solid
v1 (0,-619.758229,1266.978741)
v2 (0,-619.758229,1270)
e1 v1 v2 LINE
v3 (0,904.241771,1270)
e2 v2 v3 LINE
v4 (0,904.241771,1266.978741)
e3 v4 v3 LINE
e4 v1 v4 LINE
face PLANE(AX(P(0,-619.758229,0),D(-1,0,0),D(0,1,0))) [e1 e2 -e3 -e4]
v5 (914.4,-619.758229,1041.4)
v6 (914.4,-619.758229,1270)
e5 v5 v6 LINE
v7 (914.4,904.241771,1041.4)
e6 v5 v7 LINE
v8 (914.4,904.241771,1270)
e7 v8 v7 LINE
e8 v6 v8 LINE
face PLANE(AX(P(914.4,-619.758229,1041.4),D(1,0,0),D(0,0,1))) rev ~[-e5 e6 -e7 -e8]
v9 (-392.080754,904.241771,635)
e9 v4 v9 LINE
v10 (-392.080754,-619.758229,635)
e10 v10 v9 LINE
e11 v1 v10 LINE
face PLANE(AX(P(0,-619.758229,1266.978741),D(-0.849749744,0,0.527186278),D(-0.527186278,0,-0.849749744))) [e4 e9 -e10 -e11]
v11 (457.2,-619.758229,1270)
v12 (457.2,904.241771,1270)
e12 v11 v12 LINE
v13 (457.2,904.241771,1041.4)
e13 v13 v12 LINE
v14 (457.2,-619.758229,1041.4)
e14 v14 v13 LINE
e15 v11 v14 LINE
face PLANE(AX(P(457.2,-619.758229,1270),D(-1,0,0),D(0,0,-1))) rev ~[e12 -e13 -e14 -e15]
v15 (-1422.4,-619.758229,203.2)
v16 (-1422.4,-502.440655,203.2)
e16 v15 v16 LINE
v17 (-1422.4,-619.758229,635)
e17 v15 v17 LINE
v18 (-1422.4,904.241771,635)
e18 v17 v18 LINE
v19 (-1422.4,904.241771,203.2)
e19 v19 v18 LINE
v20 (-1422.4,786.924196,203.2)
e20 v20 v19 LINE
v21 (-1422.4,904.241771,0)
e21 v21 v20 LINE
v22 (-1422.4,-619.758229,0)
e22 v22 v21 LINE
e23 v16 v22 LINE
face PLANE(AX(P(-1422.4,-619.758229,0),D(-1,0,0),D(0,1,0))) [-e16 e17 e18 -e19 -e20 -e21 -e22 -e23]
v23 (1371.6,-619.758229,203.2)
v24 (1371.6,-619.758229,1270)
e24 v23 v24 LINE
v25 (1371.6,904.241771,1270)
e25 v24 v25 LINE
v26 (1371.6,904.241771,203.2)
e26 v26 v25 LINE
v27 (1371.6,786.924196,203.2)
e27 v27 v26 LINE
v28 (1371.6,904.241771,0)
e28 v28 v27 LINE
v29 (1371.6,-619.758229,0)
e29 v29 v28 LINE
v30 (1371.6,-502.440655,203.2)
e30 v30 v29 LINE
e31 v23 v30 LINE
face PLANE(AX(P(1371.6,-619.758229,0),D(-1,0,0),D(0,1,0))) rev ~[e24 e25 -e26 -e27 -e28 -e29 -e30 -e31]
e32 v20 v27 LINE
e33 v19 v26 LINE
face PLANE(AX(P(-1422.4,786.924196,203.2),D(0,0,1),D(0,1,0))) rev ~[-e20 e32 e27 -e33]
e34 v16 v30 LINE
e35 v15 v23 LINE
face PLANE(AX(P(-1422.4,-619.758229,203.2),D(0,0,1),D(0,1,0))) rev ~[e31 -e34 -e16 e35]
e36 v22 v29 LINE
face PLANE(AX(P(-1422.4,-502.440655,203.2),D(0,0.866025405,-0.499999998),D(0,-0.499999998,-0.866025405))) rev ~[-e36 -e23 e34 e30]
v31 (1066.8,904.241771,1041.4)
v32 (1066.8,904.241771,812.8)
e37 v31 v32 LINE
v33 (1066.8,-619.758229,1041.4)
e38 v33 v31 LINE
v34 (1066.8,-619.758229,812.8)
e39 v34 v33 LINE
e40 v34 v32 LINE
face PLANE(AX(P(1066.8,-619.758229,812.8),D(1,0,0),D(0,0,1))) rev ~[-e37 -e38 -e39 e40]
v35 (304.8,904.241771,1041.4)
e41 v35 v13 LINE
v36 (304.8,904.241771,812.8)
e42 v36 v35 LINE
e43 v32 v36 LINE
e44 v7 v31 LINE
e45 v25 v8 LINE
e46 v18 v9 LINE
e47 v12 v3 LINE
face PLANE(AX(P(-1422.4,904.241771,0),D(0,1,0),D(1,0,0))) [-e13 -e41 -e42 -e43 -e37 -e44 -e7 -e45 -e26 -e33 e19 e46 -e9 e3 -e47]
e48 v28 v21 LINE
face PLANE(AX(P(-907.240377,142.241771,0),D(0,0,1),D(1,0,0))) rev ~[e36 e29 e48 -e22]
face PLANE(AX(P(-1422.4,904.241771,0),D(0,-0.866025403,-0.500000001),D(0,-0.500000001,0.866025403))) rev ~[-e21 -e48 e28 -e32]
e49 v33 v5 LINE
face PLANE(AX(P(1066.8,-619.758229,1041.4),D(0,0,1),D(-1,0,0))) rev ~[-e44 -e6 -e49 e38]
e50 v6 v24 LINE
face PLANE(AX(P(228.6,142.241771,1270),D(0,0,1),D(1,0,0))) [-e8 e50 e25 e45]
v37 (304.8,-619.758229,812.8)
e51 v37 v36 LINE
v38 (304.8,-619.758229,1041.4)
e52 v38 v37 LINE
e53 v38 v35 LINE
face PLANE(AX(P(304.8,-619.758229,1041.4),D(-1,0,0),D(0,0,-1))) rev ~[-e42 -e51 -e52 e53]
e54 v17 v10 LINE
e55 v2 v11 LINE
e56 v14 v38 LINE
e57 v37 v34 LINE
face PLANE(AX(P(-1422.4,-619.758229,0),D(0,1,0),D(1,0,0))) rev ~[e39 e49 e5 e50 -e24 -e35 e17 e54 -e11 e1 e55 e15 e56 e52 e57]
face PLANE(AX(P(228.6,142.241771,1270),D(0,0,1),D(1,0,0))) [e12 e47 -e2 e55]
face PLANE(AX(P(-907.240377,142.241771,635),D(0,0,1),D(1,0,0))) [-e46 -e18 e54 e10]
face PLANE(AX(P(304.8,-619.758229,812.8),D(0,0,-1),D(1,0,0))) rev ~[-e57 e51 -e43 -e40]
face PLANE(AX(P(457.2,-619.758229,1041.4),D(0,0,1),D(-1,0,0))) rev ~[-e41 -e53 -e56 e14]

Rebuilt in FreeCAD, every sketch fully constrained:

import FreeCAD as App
import Part
import Sketcher
from FreeCAD import Vector
Q = App.Units.Quantity

doc = App.newDocument("Part")
body = doc.addObject("PartDesign::Body", "Body")

# Sketch on XY plane
sketch1 = body.newObject("Sketcher::SketchObject", "Sketch")
sketch1.AttachmentSupport = (doc.getObject("XY_Plane"), [""])
sketch1.MapMode = "FlatFace"
sketch1.addGeometry(Part.LineSegment(Vector(-1422, 904, 0), Vector(-1422, -620, 0)), False)
sketch1.addGeometry(Part.LineSegment(Vector(-1422, -620, 0), Vector(-392, -620, 0)), False)
sketch1.addGeometry(Part.LineSegment(Vector(-392, -620, 0), Vector(-392, 904, 0)), False)
sketch1.addGeometry(Part.LineSegment(Vector(-392, 904, 0), Vector(-1422, 904, 0)), False)
sketch1.addConstraint(Sketcher.Constraint("Coincident", 0, 2, 1, 1))
sketch1.addConstraint(Sketcher.Constraint("Coincident", 1, 2, 2, 1))
sketch1.addConstraint(Sketcher.Constraint("Coincident", 2, 2, 3, 1))
sketch1.addConstraint(Sketcher.Constraint("Coincident", 3, 2, 0, 1))
sketch1.addConstraint(Sketcher.Constraint("Vertical", 0))
sketch1.addConstraint(Sketcher.Constraint("Horizontal", 1))
sketch1.addConstraint(Sketcher.Constraint("Vertical", 2))
sketch1.addConstraint(Sketcher.Constraint("Horizontal", 3))
sketch1.addConstraint(Sketcher.Constraint("DistanceY", 0, 2, 0, 1, Q("60 in")))
sketch1.addConstraint(Sketcher.Constraint("DistanceX", 0, 2, -1, 1, Q("56 in")))
sketch1.addConstraint(Sketcher.Constraint("DistanceX", 1, 1, 1, 2, Q("1030.319246 mm")))
sketch1.addConstraint(Sketcher.Constraint("DistanceY", 0, 2, -1, 1, Q("619.758229 mm")))
pad1 = body.newObject("PartDesign::Pad", "Pad")
pad1.Profile = sketch1
pad1.Length = Q("25 in")
body2 = doc.addObject("PartDesign::Body", "Body001")

# Sketch on XY plane
sketch2 = body2.newObject("Sketcher::SketchObject", "Sketch001")
sketch2.AttachmentSupport = (doc.getObject("XY_Plane001"), [""])
sketch2.MapMode = "FlatFace"
sketch2.addGeometry(Part.LineSegment(Vector(0, 904, 0), Vector(0, -620, 0)), False)
sketch2.addGeometry(Part.LineSegment(Vector(0, -620, 0), Vector(1372, -620, 0)), False)
sketch2.addGeometry(Part.LineSegment(Vector(1372, -620, 0), Vector(1372, 904, 0)), False)
sketch2.addGeometry(Part.LineSegment(Vector(1372, 904, 0), Vector(0, 904, 0)), False)
sketch2.addConstraint(Sketcher.Constraint("Coincident", 0, 2, 1, 1))
sketch2.addConstraint(Sketcher.Constraint("Coincident", 1, 2, 2, 1))
sketch2.addConstraint(Sketcher.Constraint("Coincident", 2, 2, 3, 1))
sketch2.addConstraint(Sketcher.Constraint("Coincident", 3, 2, 0, 1))
sketch2.addConstraint(Sketcher.Constraint("Vertical", 0))
sketch2.addConstraint(Sketcher.Constraint("Horizontal", 1))
sketch2.addConstraint(Sketcher.Constraint("Vertical", 2))
sketch2.addConstraint(Sketcher.Constraint("Horizontal", 3))
sketch2.addConstraint(Sketcher.Constraint("PointOnObject", 0, 2, -2))
sketch2.addConstraint(Sketcher.Constraint("DistanceX", 1, 1, 1, 2, Q("54 in")))
sketch2.addConstraint(Sketcher.Constraint("DistanceY", 0, 2, 0, 1, Q("60 in")))
sketch2.addConstraint(Sketcher.Constraint("DistanceY", 0, 2, -1, 1, Q("619.758229 mm")))
pad2 = body2.newObject("PartDesign::Pad", "Pad001")
pad2.Profile = sketch2
pad2.Length = Q("50 in")
body3 = doc.addObject("PartDesign::Body", "Body002")

# Sketch on XY plane
sketch3 = body3.newObject("Sketcher::SketchObject", "Sketch002")
sketch3.AttachmentSupport = (doc.getObject("XY_Plane002"), [""])
sketch3.MapMode = "FlatFace"
sketch3.addGeometry(Part.LineSegment(Vector(-392, 904, 0), Vector(-392, -620, 0)), False)
sketch3.addGeometry(Part.LineSegment(Vector(-392, -620, 0), Vector(0, -620, 0)), False)
sketch3.addGeometry(Part.LineSegment(Vector(0, -620, 0), Vector(0, 904, 0)), False)
sketch3.addGeometry(Part.LineSegment(Vector(0, 904, 0), Vector(-392, 904, 0)), False)
sketch3.addConstraint(Sketcher.Constraint("Coincident", 0, 2, 1, 1))
sketch3.addConstraint(Sketcher.Constraint("Coincident", 1, 2, 2, 1))
sketch3.addConstraint(Sketcher.Constraint("Coincident", 2, 2, 3, 1))
sketch3.addConstraint(Sketcher.Constraint("Coincident", 3, 2, 0, 1))
sketch3.addConstraint(Sketcher.Constraint("Vertical", 0))
sketch3.addConstraint(Sketcher.Constraint("Horizontal", 1))
sketch3.addConstraint(Sketcher.Constraint("Vertical", 2))
sketch3.addConstraint(Sketcher.Constraint("Horizontal", 3))
sketch3.addConstraint(Sketcher.Constraint("PointOnObject", 1, 2, -2))
sketch3.addConstraint(Sketcher.Constraint("DistanceY", 0, 2, 0, 1, Q("60 in")))
sketch3.addConstraint(Sketcher.Constraint("DistanceX", 1, 1, 1, 2, Q("392.080754 mm")))
sketch3.addConstraint(Sketcher.Constraint("DistanceY", 0, 2, -1, 1, Q("619.758229 mm")))
pad3 = body3.newObject("PartDesign::Pad", "Pad002")
pad3.Profile = sketch3
pad3.Length = Q("25 in")
body4 = doc.addObject("PartDesign::Body", "Body003")

# Sketch on XZ plane
sketch4 = body4.newObject("Sketcher::SketchObject", "Sketch003")
sketch4.AttachmentSupport = (doc.getObject("XZ_Plane003"), [""])
sketch4.MapMode = "FlatFace"
sketch4.AttachmentOffset = App.Placement(Vector(0, 0, 619.758229), App.Rotation())
sketch4.addGeometry(Part.LineSegment(Vector(0, 1267, 0), Vector(-392, 635, 0)), False)
sketch4.addGeometry(Part.LineSegment(Vector(-392, 635, 0), Vector(0, 635, 0)), False)
sketch4.addGeometry(Part.LineSegment(Vector(0, 635, 0), Vector(0, 1267, 0)), False)
sketch4.addConstraint(Sketcher.Constraint("Coincident", 0, 2, 1, 1))
sketch4.addConstraint(Sketcher.Constraint("Coincident", 1, 2, 2, 1))
sketch4.addConstraint(Sketcher.Constraint("Coincident", 2, 2, 0, 1))
sketch4.addConstraint(Sketcher.Constraint("Horizontal", 1))
sketch4.addConstraint(Sketcher.Constraint("Vertical", 2))
sketch4.addConstraint(Sketcher.Constraint("PointOnObject", 1, 2, -2))
sketch4.addConstraint(Sketcher.Constraint("DistanceY", -1, 1, 0, 2, Q("25 in")))
sketch4.addConstraint(Sketcher.Constraint("DistanceY", 2, 1, 2, 2, Q("631.978741 mm")))
sketch4.addConstraint(Sketcher.Constraint("DistanceX", 1, 1, 1, 2, Q("392.080754 mm")))
pad4 = body4.newObject("PartDesign::Pad", "Pad003")
pad4.Profile = sketch4
pad4.Length = Q("60 in")
pad4.Reversed = True
doc.recompute()

boolean = body2.newObject("PartDesign::Boolean", "Boolean")
boolean.Type = "Fuse"
boolean.addObjects([body4])
doc.recompute()

boolean2 = body2.newObject("PartDesign::Boolean", "Boolean001")
boolean2.Type = "Fuse"
boolean2.addObjects([body3])
doc.recompute()

boolean3 = body2.newObject("PartDesign::Boolean", "Boolean002")
boolean3.Type = "Fuse"
boolean3.addObjects([body])

# Sketch on YZ plane
sketch5 = body2.newObject("Sketcher::SketchObject", "Sketch004")
sketch5.AttachmentSupport = (doc.getObject("YZ_Plane001"), [""])
sketch5.MapMode = "FlatFace"
sketch5.AttachmentOffset = App.Placement(Vector(0, 0, -56 * 25.4), App.Rotation())
sketch5.addGeometry(Part.LineSegment(Vector(-502, 203, 0), Vector(-620, 0, 0)), False)
sketch5.addGeometry(Part.LineSegment(Vector(-620, 0, 0), Vector(-620, 203, 0)), False)
sketch5.addGeometry(Part.LineSegment(Vector(-620, 203, 0), Vector(-502, 203, 0)), False)
sketch5.addConstraint(Sketcher.Constraint("Coincident", 0, 2, 1, 1))
sketch5.addConstraint(Sketcher.Constraint("Coincident", 1, 2, 2, 1))
sketch5.addConstraint(Sketcher.Constraint("Coincident", 2, 2, 0, 1))
sketch5.addConstraint(Sketcher.Constraint("Vertical", 1))
sketch5.addConstraint(Sketcher.Constraint("Horizontal", 2))
sketch5.addConstraint(Sketcher.Constraint("PointOnObject", 0, 2, -1))
sketch5.addConstraint(Sketcher.Constraint("DistanceY", 1, 1, 1, 2, Q("8 in")))
sketch5.addConstraint(Sketcher.Constraint("Angle", 0, Q("-120 deg")))
sketch5.addConstraint(Sketcher.Constraint("DistanceX", 0, 2, -1, 1, Q("619.758229 mm")))
pocket1 = body2.newObject("PartDesign::Pocket", "Pocket")
pocket1.Profile = sketch5
pocket1.Type = "ThroughAll"
pocket1.Reversed = True

# Sketch on YZ plane
sketch6 = body2.newObject("Sketcher::SketchObject", "Sketch005")
sketch6.AttachmentSupport = (doc.getObject("YZ_Plane001"), [""])
sketch6.MapMode = "FlatFace"
sketch6.AttachmentOffset = App.Placement(Vector(0, 0, -56 * 25.4), App.Rotation())
sketch6.addGeometry(Part.LineSegment(Vector(904, 203, 0), Vector(904, 0, 0)), False)
sketch6.addGeometry(Part.LineSegment(Vector(904, 0, 0), Vector(787, 203, 0)), False)
sketch6.addGeometry(Part.LineSegment(Vector(787, 203, 0), Vector(904, 203, 0)), False)
sketch6.addConstraint(Sketcher.Constraint("Coincident", 0, 2, 1, 1))
sketch6.addConstraint(Sketcher.Constraint("Coincident", 1, 2, 2, 1))
sketch6.addConstraint(Sketcher.Constraint("Coincident", 2, 2, 0, 1))
sketch6.addConstraint(Sketcher.Constraint("Vertical", 0))
sketch6.addConstraint(Sketcher.Constraint("Horizontal", 2))
sketch6.addConstraint(Sketcher.Constraint("PointOnObject", 0, 2, -1))
sketch6.addConstraint(Sketcher.Constraint("DistanceY", 0, 2, 0, 1, Q("8 in")))
sketch6.addConstraint(Sketcher.Constraint("Angle", 1, Q("120 deg")))
sketch6.addConstraint(Sketcher.Constraint("DistanceX", -1, 1, 0, 2, Q("904.241771 mm")))
pocket2 = body2.newObject("PartDesign::Pocket", "Pocket001")
pocket2.Profile = sketch6
pocket2.Type = "ThroughAll"
pocket2.Reversed = True

# Sketch on XZ plane
sketch7 = body2.newObject("Sketcher::SketchObject", "Sketch006")
sketch7.AttachmentSupport = (doc.getObject("XZ_Plane001"), [""])
sketch7.MapMode = "FlatFace"
sketch7.AttachmentOffset = App.Placement(Vector(0, 0, 619.758229), App.Rotation())
sketch7.addGeometry(Part.LineSegment(Vector(914, 1041, 0), Vector(914, 1270, 0)), False)
sketch7.addGeometry(Part.LineSegment(Vector(914, 1270, 0), Vector(457, 1270, 0)), False)
sketch7.addGeometry(Part.LineSegment(Vector(457, 1270, 0), Vector(457, 1041, 0)), False)
sketch7.addGeometry(Part.LineSegment(Vector(457, 1041, 0), Vector(305, 1041, 0)), False)
sketch7.addGeometry(Part.LineSegment(Vector(305, 1041, 0), Vector(305, 813, 0)), False)
sketch7.addGeometry(Part.LineSegment(Vector(305, 813, 0), Vector(1067, 813, 0)), False)
sketch7.addGeometry(Part.LineSegment(Vector(1067, 813, 0), Vector(1067, 1041, 0)), False)
sketch7.addGeometry(Part.LineSegment(Vector(1067, 1041, 0), Vector(914, 1041, 0)), False)
sketch7.addConstraint(Sketcher.Constraint("Coincident", 0, 2, 1, 1))
sketch7.addConstraint(Sketcher.Constraint("Coincident", 1, 2, 2, 1))
sketch7.addConstraint(Sketcher.Constraint("Coincident", 2, 2, 3, 1))
sketch7.addConstraint(Sketcher.Constraint("Coincident", 3, 2, 4, 1))
sketch7.addConstraint(Sketcher.Constraint("Coincident", 4, 2, 5, 1))
sketch7.addConstraint(Sketcher.Constraint("Coincident", 5, 2, 6, 1))
sketch7.addConstraint(Sketcher.Constraint("Coincident", 6, 2, 7, 1))
sketch7.addConstraint(Sketcher.Constraint("Coincident", 7, 2, 0, 1))
sketch7.addConstraint(Sketcher.Constraint("Vertical", 0))
sketch7.addConstraint(Sketcher.Constraint("Horizontal", 1))
sketch7.addConstraint(Sketcher.Constraint("Vertical", 2))
sketch7.addConstraint(Sketcher.Constraint("Horizontal", 3))
sketch7.addConstraint(Sketcher.Constraint("Vertical", 4))
sketch7.addConstraint(Sketcher.Constraint("Horizontal", 5))
sketch7.addConstraint(Sketcher.Constraint("Vertical", 6))
sketch7.addConstraint(Sketcher.Constraint("Horizontal", 7))
sketch7.addConstraint(Sketcher.Constraint("Horizontal", 3, 2, 6, 2))
sketch7.addConstraint(Sketcher.Constraint("Equal", 3, 7))
sketch7.addConstraint(Sketcher.Constraint("Equal", 2, 4))
sketch7.addConstraint(Sketcher.Constraint("DistanceX", 1, 2, 1, 1, Q("18 in")))
sketch7.addConstraint(Sketcher.Constraint("DistanceX", 3, 2, 3, 1, Q("6 in")))
sketch7.addConstraint(Sketcher.Constraint("DistanceY", 0, 1, 0, 2, Q("9 in")))
sketch7.addConstraint(Sketcher.Constraint("DistanceX", -1, 1, 0, 2, Q("36 in")))
sketch7.addConstraint(Sketcher.Constraint("DistanceY", -1, 1, 0, 2, Q("50 in")))
pocket3 = body2.newObject("PartDesign::Pocket", "Pocket002")
pocket3.Profile = sketch7
pocket3.Type = "ThroughAll"

doc.recompute()
